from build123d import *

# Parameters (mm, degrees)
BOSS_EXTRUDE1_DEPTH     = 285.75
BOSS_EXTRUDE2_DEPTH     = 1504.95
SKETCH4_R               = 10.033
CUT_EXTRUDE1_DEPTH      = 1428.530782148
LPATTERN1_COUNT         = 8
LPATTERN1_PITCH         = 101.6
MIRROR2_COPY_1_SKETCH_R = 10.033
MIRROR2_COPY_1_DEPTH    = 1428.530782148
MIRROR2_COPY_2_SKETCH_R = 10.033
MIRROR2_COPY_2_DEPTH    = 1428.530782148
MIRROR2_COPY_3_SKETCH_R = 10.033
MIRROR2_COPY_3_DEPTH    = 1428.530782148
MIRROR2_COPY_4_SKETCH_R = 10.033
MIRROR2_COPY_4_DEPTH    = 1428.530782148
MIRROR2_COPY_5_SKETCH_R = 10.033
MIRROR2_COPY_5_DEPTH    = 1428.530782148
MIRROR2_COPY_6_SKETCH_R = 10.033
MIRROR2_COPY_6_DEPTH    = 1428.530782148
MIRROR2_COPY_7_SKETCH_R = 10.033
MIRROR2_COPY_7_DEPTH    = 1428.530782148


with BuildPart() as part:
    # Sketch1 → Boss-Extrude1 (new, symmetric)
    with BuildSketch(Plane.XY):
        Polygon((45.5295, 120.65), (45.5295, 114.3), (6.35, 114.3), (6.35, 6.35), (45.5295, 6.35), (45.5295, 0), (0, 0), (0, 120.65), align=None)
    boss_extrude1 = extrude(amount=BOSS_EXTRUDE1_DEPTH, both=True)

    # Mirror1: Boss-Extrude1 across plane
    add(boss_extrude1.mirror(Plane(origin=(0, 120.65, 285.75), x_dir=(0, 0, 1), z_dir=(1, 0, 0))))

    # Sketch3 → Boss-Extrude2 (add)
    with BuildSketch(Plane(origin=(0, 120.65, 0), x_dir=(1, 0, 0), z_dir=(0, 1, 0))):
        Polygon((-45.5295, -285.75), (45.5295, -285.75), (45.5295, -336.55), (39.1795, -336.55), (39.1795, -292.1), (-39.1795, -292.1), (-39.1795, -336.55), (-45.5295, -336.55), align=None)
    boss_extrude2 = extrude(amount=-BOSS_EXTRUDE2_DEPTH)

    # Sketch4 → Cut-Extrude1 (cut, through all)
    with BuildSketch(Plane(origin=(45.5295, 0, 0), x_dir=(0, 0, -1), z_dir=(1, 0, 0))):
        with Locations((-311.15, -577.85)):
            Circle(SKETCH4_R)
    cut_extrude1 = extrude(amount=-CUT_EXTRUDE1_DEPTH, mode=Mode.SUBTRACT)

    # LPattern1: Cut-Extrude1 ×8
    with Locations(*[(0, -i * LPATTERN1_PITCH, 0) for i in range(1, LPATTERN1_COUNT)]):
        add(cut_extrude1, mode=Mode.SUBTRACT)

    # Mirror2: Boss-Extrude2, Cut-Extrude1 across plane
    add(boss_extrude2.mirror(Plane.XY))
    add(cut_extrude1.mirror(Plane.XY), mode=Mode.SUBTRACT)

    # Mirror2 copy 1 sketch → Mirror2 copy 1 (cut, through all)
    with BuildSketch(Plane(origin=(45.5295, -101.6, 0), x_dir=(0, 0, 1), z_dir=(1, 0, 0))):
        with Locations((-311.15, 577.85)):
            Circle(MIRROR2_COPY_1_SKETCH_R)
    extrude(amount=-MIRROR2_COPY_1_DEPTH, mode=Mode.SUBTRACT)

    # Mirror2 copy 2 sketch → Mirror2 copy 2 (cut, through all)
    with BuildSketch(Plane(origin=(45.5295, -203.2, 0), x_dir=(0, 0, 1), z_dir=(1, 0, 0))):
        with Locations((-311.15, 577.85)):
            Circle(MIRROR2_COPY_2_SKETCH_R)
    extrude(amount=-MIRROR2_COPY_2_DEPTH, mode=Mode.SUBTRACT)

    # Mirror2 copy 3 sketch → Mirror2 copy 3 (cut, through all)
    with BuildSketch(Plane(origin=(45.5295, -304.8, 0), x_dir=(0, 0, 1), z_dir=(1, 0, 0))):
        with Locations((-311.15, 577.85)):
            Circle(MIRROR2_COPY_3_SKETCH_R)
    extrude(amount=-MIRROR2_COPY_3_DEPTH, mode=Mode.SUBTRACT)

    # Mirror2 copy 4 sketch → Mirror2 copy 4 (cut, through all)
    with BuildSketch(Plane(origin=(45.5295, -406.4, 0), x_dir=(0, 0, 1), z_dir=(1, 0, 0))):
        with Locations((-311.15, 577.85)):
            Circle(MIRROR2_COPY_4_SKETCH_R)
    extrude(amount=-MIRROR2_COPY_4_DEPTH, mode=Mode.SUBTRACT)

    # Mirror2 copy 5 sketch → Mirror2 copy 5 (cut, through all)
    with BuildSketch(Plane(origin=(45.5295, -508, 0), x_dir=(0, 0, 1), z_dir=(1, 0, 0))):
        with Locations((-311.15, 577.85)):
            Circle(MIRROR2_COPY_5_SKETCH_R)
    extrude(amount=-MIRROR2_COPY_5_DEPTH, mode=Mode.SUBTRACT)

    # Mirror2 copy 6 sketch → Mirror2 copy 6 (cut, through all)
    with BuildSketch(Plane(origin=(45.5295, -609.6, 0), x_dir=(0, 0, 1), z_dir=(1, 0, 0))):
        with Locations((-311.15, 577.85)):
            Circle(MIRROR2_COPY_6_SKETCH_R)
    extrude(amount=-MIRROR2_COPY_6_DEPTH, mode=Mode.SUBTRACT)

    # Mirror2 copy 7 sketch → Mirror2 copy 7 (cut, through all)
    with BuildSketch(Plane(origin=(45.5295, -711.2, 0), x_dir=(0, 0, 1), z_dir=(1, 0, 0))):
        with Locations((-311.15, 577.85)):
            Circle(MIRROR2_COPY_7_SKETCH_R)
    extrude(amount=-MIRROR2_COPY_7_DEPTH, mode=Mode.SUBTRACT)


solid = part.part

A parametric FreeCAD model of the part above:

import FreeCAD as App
import Part
import Sketcher
from FreeCAD import Vector
Q = App.Units.Quantity

doc = App.newDocument("Part")
body = doc.addObject("PartDesign::Body", "Body")

sketch1 = body.newObject("Sketcher::SketchObject", "Sketch")
sketch1.AttachmentSupport = (doc.getObject("XY_Plane"), [""])
sketch1.MapMode = "FlatFace"
sketch1.addGeometry([
    Part.LineSegment(Vector(46, 114, 0), Vector(46, 121, 0)),
    Part.LineSegment(Vector(46, 121, 0), Vector(0, 121, 0)),
    Part.LineSegment(Vector(0, 121, 0), Vector(0, 0, 0)),
    Part.LineSegment(Vector(0, 0, 0), Vector(46, 0, 0)),
    Part.LineSegment(Vector(46, 0, 0), Vector(46, 6, 0)),
    Part.LineSegment(Vector(46, 6, 0), Vector(6, 6, 0)),
    Part.LineSegment(Vector(6, 6, 0), Vector(6, 114, 0)),
    Part.LineSegment(Vector(6, 114, 0), Vector(46, 114, 0)),
], False)
sketch1.addConstraint([
    Sketcher.Constraint("Coincident", 0, 2, 1, 1),
    Sketcher.Constraint("Coincident", 1, 2, 2, 1),
    Sketcher.Constraint("Coincident", 2, 2, 3, 1),
    Sketcher.Constraint("Coincident", 3, 2, 4, 1),
    Sketcher.Constraint("Coincident", 4, 2, 5, 1),
    Sketcher.Constraint("Coincident", 5, 2, 6, 1),
    Sketcher.Constraint("Coincident", 6, 2, 7, 1),
    Sketcher.Constraint("Coincident", 7, 2, 0, 1),
    Sketcher.Constraint("Vertical", 0),
    Sketcher.Constraint("Horizontal", 1),
    Sketcher.Constraint("Vertical", 2),
    Sketcher.Constraint("Horizontal", 3),
    Sketcher.Constraint("Vertical", 4),
    Sketcher.Constraint("Horizontal", 5),
    Sketcher.Constraint("Vertical", 6),
    Sketcher.Constraint("Horizontal", 7),
    Sketcher.Constraint("Coincident", 2, 2, -1, 1),
    Sketcher.Constraint("Vertical", 0, 2, 3, 2),
    Sketcher.Constraint("Equal", 0, 4),
    Sketcher.Constraint("DistanceY", 0, 1, 0, 2, Q("0.25 in")),
    Sketcher.Constraint("DistanceY", 2, 2, 2, 1, Q("4.75 in")),
    Sketcher.Constraint("DistanceX", -1, 1, 5, 2, Q("0.25 in")),
    Sketcher.Constraint("DistanceX", 1, 2, 1, 1, Q("1.7925 in")),
])
pad1 = body.newObject("PartDesign::Pad", "Pad")
pad1.Profile = sketch1
pad1.Length = Q("22.5 in")
pad1.Midplane = True
doc.recompute()

mirrored = body.newObject("PartDesign::Mirrored", "Mirrored")
mirrored.Originals = [pad1]
mirrored.MirrorPlane = (doc.getObject("YZ_Plane"), [""])
body.Tip = mirrored

sketch2 = body.newObject("Sketcher::SketchObject", "Sketch001")
sketch2.AttachmentSupport = (doc.getObject("XZ_Plane"), [""])
sketch2.MapMode = "FlatFace"
sketch2.AttachmentOffset = App.Placement(Vector(0, 0, -4.75 * 25.4), App.Rotation())
sketch2.addGeometry([
    Part.LineSegment(Vector(46, 286, 0), Vector(-46, 286, 0)),
    Part.LineSegment(Vector(-46, 286, 0), Vector(-46, 337, 0)),
    Part.LineSegment(Vector(-46, 337, 0), Vector(-39, 337, 0)),
    Part.LineSegment(Vector(-39, 337, 0), Vector(-39, 292, 0)),
    Part.LineSegment(Vector(-39, 292, 0), Vector(39, 292, 0)),
    Part.LineSegment(Vector(39, 292, 0), Vector(39, 337, 0)),
    Part.LineSegment(Vector(39, 337, 0), Vector(46, 337, 0)),
    Part.LineSegment(Vector(46, 337, 0), Vector(46, 286, 0)),
], False)
sketch2.addConstraint([
    Sketcher.Constraint("Coincident", 0, 2, 1, 1),
    Sketcher.Constraint("Coincident", 1, 2, 2, 1),
    Sketcher.Constraint("Coincident", 2, 2, 3, 1),
    Sketcher.Constraint("Coincident", 3, 2, 4, 1),
    Sketcher.Constraint("Coincident", 4, 2, 5, 1),
    Sketcher.Constraint("Coincident", 5, 2, 6, 1),
    Sketcher.Constraint("Coincident", 6, 2, 7, 1),
    Sketcher.Constraint("Coincident", 7, 2, 0, 1),
    Sketcher.Constraint("Horizontal", 0),
    Sketcher.Constraint("Vertical", 1),
    Sketcher.Constraint("Horizontal", 2),
    Sketcher.Constraint("Vertical", 3),
    Sketcher.Constraint("Horizontal", 4),
    Sketcher.Constraint("Vertical", 5),
    Sketcher.Constraint("Horizontal", 6),
    Sketcher.Constraint("Vertical", 7),
    Sketcher.Constraint("Symmetric", 2, 2, 5, 2, -2),
    Sketcher.Constraint("Equal", 2, 6),
    Sketcher.Constraint("DistanceY", 1, 1, 1, 2, Q("2 in")),
    Sketcher.Constraint("DistanceX", 2, 1, 2, 2, Q("0.25 in")),
    Sketcher.Constraint("DistanceY", 3, 2, 3, 1, Q("1.75 in")),
    Sketcher.Constraint("DistanceY", -1, 1, 3, 2, Q("11.5 in")),
    Sketcher.Constraint("DistanceX", 0, 2, 0, 1, Q("3.585 in")),
])
pad2 = body.newObject("PartDesign::Pad", "Pad001")
pad2.Profile = sketch2
pad2.Length = Q("59.25 in")

sketch3 = body.newObject("Sketcher::SketchObject", "Sketch002")
sketch3.AttachmentSupport = (doc.getObject("YZ_Plane"), [""])
sketch3.MapMode = "FlatFace"
sketch3.AttachmentOffset = App.Placement(Vector(0, 0, 1.7925 * 25.4), App.Rotation())
sketch3.addGeometry(Part.Circle(Vector(-578, 311, 0), Vector(0, 0, 1), 10), False)
sketch3.addConstraint([
    Sketcher.Constraint("Diameter", 0, Q("0.79 in")),
    Sketcher.Constraint("DistanceX", 0, 3, -1, 1, Q("22.75 in")),
    Sketcher.Constraint("DistanceY", -1, 1, 0, 3, Q("12.25 in")),
])
pocket1 = body.newObject("PartDesign::Pocket", "Pocket")
pocket1.Profile = sketch3
pocket1.Type = "ThroughAll"
doc.recompute()

linearpattern = body.newObject("PartDesign::LinearPattern", "LinearPattern")
linearpattern.Originals = [pocket1]
linearpattern.Direction = (doc.getObject("Y_Axis"), [""])
linearpattern.Mode = "offset"
linearpattern.Offset = Q("4 in")
linearpattern.Occurrences = 8
linearpattern.Reversed = True
body.Tip = linearpattern
doc.recompute()

mirrored2 = body.newObject("PartDesign::Mirrored", "Mirrored001")
mirrored2.Originals = [pad2, pocket1]
mirrored2.MirrorPlane = (doc.getObject("XY_Plane"), [""])
body.Tip = mirrored2

sketch4 = body.newObject("Sketcher::SketchObject", "Sketch003")
sketch4.AttachmentSupport = (doc.getObject("YZ_Plane"), [""])
sketch4.MapMode = "FlatFace"
sketch4.AttachmentOffset = App.Placement(Vector(0, 0, 1.7925 * 25.4), App.Rotation())
sketch4.addGeometry(Part.Circle(Vector(-679, -311, 0), Vector(0, 0, 1), 10), False)
sketch4.addConstraint([
    Sketcher.Constraint("Diameter", 0, Q("0.79 in")),
    Sketcher.Constraint("DistanceX", 0, 3, -1, 1, Q("26.75 in")),
    Sketcher.Constraint("DistanceY", 0, 3, -1, 1, Q("12.25 in")),
])
pocket2 = body.newObject("PartDesign::Pocket", "Pocket001")
pocket2.Profile = sketch4
pocket2.Type = "ThroughAll"

sketch5 = body.newObject("Sketcher::SketchObject", "Sketch004")
sketch5.AttachmentSupport = (doc.getObject("YZ_Plane"), [""])
sketch5.MapMode = "FlatFace"
sketch5.AttachmentOffset = App.Placement(Vector(0, 0, 1.7925 * 25.4), App.Rotation())
sketch5.addGeometry(Part.Circle(Vector(-781, -311, 0), Vector(0, 0, 1), 10), False)
sketch5.addConstraint([
    Sketcher.Constraint("Diameter", 0, Q("0.79 in")),
    Sketcher.Constraint("DistanceX", 0, 3, -1, 1, Q("30.75 in")),
    Sketcher.Constraint("DistanceY", 0, 3, -1, 1, Q("12.25 in")),
])
pocket3 = body.newObject("PartDesign::Pocket", "Pocket002")
pocket3.Profile = sketch5
pocket3.Type = "ThroughAll"

sketch6 = body.newObject("Sketcher::SketchObject", "Sketch005")
sketch6.AttachmentSupport = (doc.getObject("YZ_Plane"), [""])
sketch6.MapMode = "FlatFace"
sketch6.AttachmentOffset = App.Placement(Vector(0, 0, 1.7925 * 25.4), App.Rotation())
sketch6.addGeometry(Part.Circle(Vector(-883, -311, 0), Vector(0, 0, 1), 10), False)
sketch6.addConstraint([
    Sketcher.Constraint("Diameter", 0, Q("0.79 in")),
    Sketcher.Constraint("DistanceX", 0, 3, -1, 1, Q("34.75 in")),
    Sketcher.Constraint("DistanceY", 0, 3, -1, 1, Q("12.25 in")),
])
pocket4 = body.newObject("PartDesign::Pocket", "Pocket003")
pocket4.Profile = sketch6
pocket4.Type = "ThroughAll"

sketch7 = body.newObject("Sketcher::SketchObject", "Sketch006")
sketch7.AttachmentSupport = (doc.getObject("YZ_Plane"), [""])
sketch7.MapMode = "FlatFace"
sketch7.AttachmentOffset = App.Placement(Vector(0, 0, 1.7925 * 25.4), App.Rotation())
sketch7.addGeometry(Part.Circle(Vector(-984, -311, 0), Vector(0, 0, 1), 10), False)
sketch7.addConstraint([
    Sketcher.Constraint("Diameter", 0, Q("0.79 in")),
    Sketcher.Constraint("DistanceX", 0, 3, -1, 1, Q("38.75 in")),
    Sketcher.Constraint("DistanceY", 0, 3, -1, 1, Q("12.25 in")),
])
pocket5 = body.newObject("PartDesign::Pocket", "Pocket004")
pocket5.Profile = sketch7
pocket5.Type = "ThroughAll"

sketch8 = body.newObject("Sketcher::SketchObject", "Sketch007")
sketch8.AttachmentSupport = (doc.getObject("YZ_Plane"), [""])
sketch8.MapMode = "FlatFace"
sketch8.AttachmentOffset = App.Placement(Vector(0, 0, 1.7925 * 25.4), App.Rotation())
sketch8.addGeometry(Part.Circle(Vector(-1086, -311, 0), Vector(0, 0, 1), 10), False)
sketch8.addConstraint([
    Sketcher.Constraint("Diameter", 0, Q("0.79 in")),
    Sketcher.Constraint("DistanceX", 0, 3, -1, 1, Q("42.75 in")),
    Sketcher.Constraint("DistanceY", 0, 3, -1, 1, Q("12.25 in")),
])
pocket6 = body.newObject("PartDesign::Pocket", "Pocket005")
pocket6.Profile = sketch8
pocket6.Type = "ThroughAll"

sketch9 = body.newObject("Sketcher::SketchObject", "Sketch008")
sketch9.AttachmentSupport = (doc.getObject("YZ_Plane"), [""])
sketch9.MapMode = "FlatFace"
sketch9.AttachmentOffset = App.Placement(Vector(0, 0, 1.7925 * 25.4), App.Rotation())
sketch9.addGeometry(Part.Circle(Vector(-1187, -311, 0), Vector(0, 0, 1), 10), False)
sketch9.addConstraint([
    Sketcher.Constraint("Diameter", 0, Q("0.79 in")),
    Sketcher.Constraint("DistanceX", 0, 3, -1, 1, Q("46.75 in")),
    Sketcher.Constraint("DistanceY", 0, 3, -1, 1, Q("12.25 in")),
])
pocket7 = body.newObject("PartDesign::Pocket", "Pocket006")
pocket7.Profile = sketch9
pocket7.Type = "ThroughAll"

sketch10 = body.newObject("Sketcher::SketchObject", "Sketch009")
sketch10.AttachmentSupport = (doc.getObject("YZ_Plane"), [""])
sketch10.MapMode = "FlatFace"
sketch10.AttachmentOffset = App.Placement(Vector(0, 0, 1.7925 * 25.4), App.Rotation())
sketch10.addGeometry(Part.Circle(Vector(-1289, -311, 0), Vector(0, 0, 1), 10), False)
sketch10.addConstraint([
    Sketcher.Constraint("Diameter", 0, Q("0.79 in")),
    Sketcher.Constraint("DistanceX", 0, 3, -1, 1, Q("50.75 in")),
    Sketcher.Constraint("DistanceY", 0, 3, -1, 1, Q("12.25 in")),
])
pocket8 = body.newObject("PartDesign::Pocket", "Pocket007")
pocket8.Profile = sketch10
pocket8.Type = "ThroughAll"

doc.recompute()
